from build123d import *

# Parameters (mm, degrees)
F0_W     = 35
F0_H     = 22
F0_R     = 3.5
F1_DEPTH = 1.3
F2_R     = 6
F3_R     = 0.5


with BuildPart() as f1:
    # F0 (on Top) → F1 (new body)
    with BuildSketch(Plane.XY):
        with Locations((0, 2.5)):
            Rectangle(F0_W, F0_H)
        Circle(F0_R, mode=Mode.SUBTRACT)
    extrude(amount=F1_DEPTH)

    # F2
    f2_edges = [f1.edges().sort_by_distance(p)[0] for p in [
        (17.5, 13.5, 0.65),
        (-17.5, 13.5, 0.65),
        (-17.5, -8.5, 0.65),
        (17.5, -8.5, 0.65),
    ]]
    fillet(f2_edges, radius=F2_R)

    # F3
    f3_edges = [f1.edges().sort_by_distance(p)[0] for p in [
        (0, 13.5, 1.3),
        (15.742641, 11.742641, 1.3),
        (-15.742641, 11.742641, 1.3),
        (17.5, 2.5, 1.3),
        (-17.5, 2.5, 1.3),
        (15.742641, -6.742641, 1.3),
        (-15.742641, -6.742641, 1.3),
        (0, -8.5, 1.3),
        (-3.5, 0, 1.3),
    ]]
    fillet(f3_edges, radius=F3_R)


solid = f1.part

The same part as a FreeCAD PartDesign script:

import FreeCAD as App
import Part
import Sketcher

V = App.Vector


def edges_at(feature, points):
    """Names of the edges that pass closest to the given points."""
    edges = feature.Shape.Edges
    near = lambda p: min(range(len(edges)), key=lambda i: edges[i].distToShape(Part.Vertex(*p))[0])
    return sorted({f"Edge{near(p) + 1}" for p in points})


def add_polygon(sketch, points):
    """Adds a closed chain of lines whose ends are joined by coincident constraints."""
    first, n = sketch.GeometryCount, len(points)
    for a, b in zip(points, points[1:] + points[:1]):
        sketch.addGeometry(Part.LineSegment(App.Vector(*a, 0), App.Vector(*b, 0)), False)
    for i in range(n):
        sketch.addConstraint(Sketcher.Constraint("Coincident", first + i, 2, first + (i + 1) % n, 1))

doc = App.newDocument("Part")
body = doc.addObject("PartDesign::Body", "Body")

# Sketch on XY plane
sketch1 = doc.addObject("Sketcher::SketchObject", "Sketch")
body.addObject(sketch1)
sketch1.AttachmentSupport = (doc.XY_Plane, [""])
sketch1.MapMode = "FlatFace"
add_polygon(sketch1, [(-17.5, 13.5), (-17.5, -8.5), (17.5, -8.5), (17.5, 13.5)])  # lines 0-3
sketch1.addGeometry(Part.Circle(V(0, 0, 0), V(0, 0, 1), 3.5), False)  # 4
sketch1.addConstraint(Sketcher.Constraint("Vertical", 0))
sketch1.addConstraint(Sketcher.Constraint("Horizontal", 1))
sketch1.addConstraint(Sketcher.Constraint("Vertical", 2))
sketch1.addConstraint(Sketcher.Constraint("Horizontal", 3))
sketch1.addConstraint(Sketcher.Constraint("Coincident", 4, 3, -1, 1))
sketch1.addConstraint(Sketcher.Constraint("Diameter", 4, 7.0))
sketch1.addConstraint(Sketcher.Constraint("DistanceX", 1, 1, 1, 2, 35.0))
sketch1.addConstraint(Sketcher.Constraint("DistanceY", 0, 2, 0, 1, 22.0))
sketch1.addConstraint(Sketcher.Constraint("DistanceX", 0, 2, -1, 1, 17.5))
sketch1.addConstraint(Sketcher.Constraint("DistanceY", 0, 2, -1, 1, 8.5))
pad1 = doc.addObject("PartDesign::Pad", "Pad")
body.addObject(pad1)
pad1.Profile = sketch1
pad1.Length = 1.3
doc.recompute()

fillet = doc.addObject("PartDesign::Fillet", "Fillet")
body.addObject(fillet)
fillet.Base = (pad1, edges_at(pad1, [
    (17.5, 13.5, 0.65),
    (-17.5, 13.5, 0.65),
    (-17.5, -8.5, 0.65),
    (17.5, -8.5, 0.65),
]))
fillet.Radius = 6
doc.recompute()

fillet2 = doc.addObject("PartDesign::Fillet", "Fillet001")
body.addObject(fillet2)
fillet2.Base = (fillet, edges_at(fillet, [
    (0, 13.5, 1.3),
    (15.743, 11.743, 1.3),
    (-15.743, 11.743, 1.3),
    (17.5, 2.5, 1.3),
    (-17.5, 2.5, 1.3),
    (15.743, -6.743, 1.3),
    (-15.743, -6.743, 1.3),
    (0, -8.5, 1.3),
    (-3.5, 0, 1.3),
]))
fillet2.Radius = 0.5

doc.recompute()
